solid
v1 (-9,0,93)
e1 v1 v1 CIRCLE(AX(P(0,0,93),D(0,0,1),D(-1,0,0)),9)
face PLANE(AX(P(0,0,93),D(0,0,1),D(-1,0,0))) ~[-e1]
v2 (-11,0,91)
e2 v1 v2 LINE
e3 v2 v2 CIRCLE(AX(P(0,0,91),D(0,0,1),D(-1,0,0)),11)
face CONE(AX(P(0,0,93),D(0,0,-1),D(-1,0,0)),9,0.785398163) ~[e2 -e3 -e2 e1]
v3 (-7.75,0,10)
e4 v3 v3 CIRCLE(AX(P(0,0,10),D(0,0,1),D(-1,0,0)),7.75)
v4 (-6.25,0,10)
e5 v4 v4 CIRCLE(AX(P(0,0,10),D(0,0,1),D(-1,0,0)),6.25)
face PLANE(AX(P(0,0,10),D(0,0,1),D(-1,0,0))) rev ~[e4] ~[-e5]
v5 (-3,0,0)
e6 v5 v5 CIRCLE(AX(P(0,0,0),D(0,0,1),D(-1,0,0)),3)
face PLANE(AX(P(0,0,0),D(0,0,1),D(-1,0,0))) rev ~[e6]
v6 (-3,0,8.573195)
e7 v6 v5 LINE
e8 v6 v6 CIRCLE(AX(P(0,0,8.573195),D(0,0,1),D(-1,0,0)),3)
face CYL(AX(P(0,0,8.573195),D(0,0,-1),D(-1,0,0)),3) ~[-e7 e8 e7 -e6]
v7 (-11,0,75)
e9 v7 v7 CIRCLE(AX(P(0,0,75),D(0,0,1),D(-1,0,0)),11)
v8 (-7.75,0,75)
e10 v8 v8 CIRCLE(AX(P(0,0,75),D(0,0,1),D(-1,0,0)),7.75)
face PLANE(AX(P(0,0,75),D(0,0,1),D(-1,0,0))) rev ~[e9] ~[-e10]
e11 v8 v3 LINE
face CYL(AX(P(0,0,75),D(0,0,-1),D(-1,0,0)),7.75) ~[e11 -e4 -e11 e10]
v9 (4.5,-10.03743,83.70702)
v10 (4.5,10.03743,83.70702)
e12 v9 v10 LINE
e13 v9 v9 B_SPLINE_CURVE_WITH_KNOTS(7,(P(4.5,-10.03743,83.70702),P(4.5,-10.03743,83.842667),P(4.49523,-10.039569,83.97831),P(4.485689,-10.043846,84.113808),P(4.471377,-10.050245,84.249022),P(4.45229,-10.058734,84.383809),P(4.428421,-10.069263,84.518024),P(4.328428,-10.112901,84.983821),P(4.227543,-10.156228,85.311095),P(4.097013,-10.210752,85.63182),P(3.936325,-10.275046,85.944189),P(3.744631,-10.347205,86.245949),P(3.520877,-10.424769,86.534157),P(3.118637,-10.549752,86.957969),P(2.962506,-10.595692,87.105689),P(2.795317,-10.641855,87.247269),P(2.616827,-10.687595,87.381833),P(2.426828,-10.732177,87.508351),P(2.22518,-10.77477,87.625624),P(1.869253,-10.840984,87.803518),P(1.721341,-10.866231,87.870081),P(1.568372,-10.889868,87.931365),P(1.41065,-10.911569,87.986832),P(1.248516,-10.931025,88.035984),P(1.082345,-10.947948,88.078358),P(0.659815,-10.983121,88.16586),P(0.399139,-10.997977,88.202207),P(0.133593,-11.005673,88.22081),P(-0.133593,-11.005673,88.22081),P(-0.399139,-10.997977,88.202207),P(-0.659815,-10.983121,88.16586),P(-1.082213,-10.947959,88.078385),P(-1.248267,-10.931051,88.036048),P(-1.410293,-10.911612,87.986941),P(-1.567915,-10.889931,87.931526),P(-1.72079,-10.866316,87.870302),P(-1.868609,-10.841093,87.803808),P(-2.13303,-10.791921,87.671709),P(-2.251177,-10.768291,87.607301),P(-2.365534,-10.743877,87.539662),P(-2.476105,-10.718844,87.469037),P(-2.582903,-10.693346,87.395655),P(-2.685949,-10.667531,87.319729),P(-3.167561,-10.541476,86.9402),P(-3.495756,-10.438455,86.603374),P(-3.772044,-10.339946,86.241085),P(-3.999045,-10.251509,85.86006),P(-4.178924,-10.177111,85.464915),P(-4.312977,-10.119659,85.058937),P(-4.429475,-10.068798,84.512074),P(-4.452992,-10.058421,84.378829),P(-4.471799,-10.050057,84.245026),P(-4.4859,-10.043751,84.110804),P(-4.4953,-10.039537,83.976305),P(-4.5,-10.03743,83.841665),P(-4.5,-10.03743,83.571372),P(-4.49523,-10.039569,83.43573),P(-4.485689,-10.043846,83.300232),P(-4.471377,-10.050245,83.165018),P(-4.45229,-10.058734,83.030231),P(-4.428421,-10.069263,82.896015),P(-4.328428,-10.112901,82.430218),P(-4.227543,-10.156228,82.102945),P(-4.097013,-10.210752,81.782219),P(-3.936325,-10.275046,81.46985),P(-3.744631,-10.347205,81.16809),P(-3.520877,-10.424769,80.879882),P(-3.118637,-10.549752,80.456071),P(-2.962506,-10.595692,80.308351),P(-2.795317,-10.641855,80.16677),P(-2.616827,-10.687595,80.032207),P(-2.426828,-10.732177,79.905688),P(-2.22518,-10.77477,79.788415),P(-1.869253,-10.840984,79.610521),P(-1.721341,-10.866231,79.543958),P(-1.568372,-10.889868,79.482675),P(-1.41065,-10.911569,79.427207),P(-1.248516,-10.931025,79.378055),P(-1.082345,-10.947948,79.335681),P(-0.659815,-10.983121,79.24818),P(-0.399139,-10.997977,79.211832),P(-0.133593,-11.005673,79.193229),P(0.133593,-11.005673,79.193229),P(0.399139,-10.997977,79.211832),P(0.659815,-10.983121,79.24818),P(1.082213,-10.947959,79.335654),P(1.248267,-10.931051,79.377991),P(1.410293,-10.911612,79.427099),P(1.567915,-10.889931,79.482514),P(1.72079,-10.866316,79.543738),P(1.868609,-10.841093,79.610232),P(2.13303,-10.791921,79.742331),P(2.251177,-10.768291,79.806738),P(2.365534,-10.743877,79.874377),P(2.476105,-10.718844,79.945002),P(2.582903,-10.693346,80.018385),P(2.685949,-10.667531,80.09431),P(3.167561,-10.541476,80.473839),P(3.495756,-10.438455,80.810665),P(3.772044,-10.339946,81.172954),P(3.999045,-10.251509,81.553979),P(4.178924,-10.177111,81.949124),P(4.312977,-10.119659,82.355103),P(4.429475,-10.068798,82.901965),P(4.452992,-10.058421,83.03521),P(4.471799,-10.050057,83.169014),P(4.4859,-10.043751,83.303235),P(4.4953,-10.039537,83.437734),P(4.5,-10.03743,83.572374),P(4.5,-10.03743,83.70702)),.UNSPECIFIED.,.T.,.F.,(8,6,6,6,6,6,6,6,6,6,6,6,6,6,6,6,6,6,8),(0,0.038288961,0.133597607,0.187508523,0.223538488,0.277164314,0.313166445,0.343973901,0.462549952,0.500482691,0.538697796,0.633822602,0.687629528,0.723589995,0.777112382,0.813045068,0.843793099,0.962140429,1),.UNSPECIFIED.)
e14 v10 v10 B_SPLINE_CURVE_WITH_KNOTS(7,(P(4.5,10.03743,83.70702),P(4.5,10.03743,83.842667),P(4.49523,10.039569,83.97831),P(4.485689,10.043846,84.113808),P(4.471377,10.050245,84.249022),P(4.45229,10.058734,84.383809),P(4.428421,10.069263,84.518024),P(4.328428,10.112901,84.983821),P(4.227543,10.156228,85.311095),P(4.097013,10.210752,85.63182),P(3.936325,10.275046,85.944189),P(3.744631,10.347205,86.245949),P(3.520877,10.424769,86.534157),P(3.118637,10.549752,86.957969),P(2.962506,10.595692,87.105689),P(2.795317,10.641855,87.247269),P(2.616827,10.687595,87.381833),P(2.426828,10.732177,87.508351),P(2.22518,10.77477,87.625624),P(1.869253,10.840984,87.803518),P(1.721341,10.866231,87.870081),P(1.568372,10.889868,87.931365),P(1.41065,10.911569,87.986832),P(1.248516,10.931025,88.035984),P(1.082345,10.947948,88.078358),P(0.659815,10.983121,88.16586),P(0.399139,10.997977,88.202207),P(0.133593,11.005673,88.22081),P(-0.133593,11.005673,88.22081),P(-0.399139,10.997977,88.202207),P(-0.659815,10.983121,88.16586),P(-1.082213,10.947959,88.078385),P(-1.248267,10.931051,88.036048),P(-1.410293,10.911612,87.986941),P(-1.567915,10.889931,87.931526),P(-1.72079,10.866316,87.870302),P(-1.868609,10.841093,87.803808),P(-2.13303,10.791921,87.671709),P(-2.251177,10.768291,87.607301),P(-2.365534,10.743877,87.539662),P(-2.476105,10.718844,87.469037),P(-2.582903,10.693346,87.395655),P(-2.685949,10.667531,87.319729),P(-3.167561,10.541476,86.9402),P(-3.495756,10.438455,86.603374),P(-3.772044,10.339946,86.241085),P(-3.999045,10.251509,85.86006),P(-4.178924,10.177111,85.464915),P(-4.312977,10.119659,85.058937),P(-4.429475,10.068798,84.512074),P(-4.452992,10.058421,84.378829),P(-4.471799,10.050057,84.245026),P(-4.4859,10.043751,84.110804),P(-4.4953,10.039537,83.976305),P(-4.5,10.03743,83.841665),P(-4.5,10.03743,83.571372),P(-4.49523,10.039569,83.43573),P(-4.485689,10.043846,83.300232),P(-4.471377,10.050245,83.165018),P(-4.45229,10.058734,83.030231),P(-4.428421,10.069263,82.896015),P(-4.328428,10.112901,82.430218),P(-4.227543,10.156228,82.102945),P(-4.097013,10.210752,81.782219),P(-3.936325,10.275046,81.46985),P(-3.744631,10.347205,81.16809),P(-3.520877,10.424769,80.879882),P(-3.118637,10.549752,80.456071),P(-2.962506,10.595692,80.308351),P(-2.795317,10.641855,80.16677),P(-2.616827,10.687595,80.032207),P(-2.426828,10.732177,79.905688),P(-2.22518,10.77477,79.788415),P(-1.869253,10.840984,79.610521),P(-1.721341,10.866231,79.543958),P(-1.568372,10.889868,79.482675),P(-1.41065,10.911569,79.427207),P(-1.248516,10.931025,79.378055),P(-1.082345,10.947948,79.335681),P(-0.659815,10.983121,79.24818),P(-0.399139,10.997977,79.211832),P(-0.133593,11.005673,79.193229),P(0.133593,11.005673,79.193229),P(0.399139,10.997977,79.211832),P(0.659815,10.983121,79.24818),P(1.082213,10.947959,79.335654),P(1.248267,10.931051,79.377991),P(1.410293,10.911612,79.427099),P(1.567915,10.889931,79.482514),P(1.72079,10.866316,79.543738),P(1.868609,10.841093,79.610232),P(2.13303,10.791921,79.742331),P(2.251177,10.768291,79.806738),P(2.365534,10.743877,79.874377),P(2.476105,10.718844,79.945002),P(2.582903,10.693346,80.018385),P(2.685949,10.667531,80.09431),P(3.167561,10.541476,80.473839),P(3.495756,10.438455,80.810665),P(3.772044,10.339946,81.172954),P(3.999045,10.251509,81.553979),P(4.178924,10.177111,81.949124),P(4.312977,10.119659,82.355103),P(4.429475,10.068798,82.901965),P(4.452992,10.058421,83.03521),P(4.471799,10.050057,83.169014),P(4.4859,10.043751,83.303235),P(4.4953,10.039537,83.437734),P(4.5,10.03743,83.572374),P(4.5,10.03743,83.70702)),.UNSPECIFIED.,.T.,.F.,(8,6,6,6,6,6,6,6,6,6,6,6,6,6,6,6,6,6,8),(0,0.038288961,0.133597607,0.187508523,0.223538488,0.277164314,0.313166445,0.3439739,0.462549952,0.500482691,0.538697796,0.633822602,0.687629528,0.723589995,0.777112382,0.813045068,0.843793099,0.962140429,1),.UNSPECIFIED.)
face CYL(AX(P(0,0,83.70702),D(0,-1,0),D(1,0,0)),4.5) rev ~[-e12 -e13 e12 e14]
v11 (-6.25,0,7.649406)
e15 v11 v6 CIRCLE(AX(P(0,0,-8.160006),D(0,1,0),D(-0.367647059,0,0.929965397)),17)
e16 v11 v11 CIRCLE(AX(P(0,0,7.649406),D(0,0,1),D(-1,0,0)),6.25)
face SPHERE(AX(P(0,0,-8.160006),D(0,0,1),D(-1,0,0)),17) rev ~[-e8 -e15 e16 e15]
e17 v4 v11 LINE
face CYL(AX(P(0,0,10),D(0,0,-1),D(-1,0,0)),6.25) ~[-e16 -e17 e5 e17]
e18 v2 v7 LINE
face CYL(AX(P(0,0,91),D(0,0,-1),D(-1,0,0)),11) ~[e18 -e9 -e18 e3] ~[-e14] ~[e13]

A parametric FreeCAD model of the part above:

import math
import FreeCAD as App
import Part
import Sketcher
from FreeCAD import Vector
Q = App.Units.Quantity

doc = App.newDocument("Part")
body = doc.addObject("PartDesign::Body", "Body")

sketch1 = doc.addObject("Sketcher::SketchObject", "Sketch")
body.addObject(sketch1)
sketch1.AttachmentSupport = (doc.XZ_Plane, [""])
sketch1.MapMode = "FlatFace"
sketch1.addGeometry([
    Part.LineSegment(Vector(0, 93, 0), Vector(-9, 93, 0)),
    Part.LineSegment(Vector(-9, 93, 0), Vector(-11, 91, 0)),
    Part.LineSegment(Vector(-11, 91, 0), Vector(-11, 75, 0)),
    Part.LineSegment(Vector(-11, 75, 0), Vector(-7.8, 75, 0)),
    Part.LineSegment(Vector(-7.8, 75, 0), Vector(-7.8, 10, 0)),
    Part.LineSegment(Vector(-7.8, 10, 0), Vector(-6.2, 10, 0)),
    Part.LineSegment(Vector(-6.2, 10, 0), Vector(-6.2, 7.6, 0)),
    Part.ArcOfCircle(Part.Circle(Vector(0, -8.2, 0), Vector(0, 0, 1), 17), math.radians(100.16), math.radians(111.57)),
    Part.LineSegment(Vector(-3, 8.6, 0), Vector(-3, 0, 0)),
    Part.LineSegment(Vector(-3, 0, 0), Vector(0, 0, 0)),
    Part.LineSegment(Vector(0, 0, 0), Vector(0, 93, 0)),
], False)
sketch1.addConstraint([
    Sketcher.Constraint("Coincident", 0, 2, 1, 1),
    Sketcher.Constraint("Coincident", 1, 2, 2, 1),
    Sketcher.Constraint("Coincident", 2, 2, 3, 1),
    Sketcher.Constraint("Coincident", 3, 2, 4, 1),
    Sketcher.Constraint("Coincident", 4, 2, 5, 1),
    Sketcher.Constraint("Coincident", 5, 2, 6, 1),
    Sketcher.Constraint("Coincident", 6, 2, 7, 2),
    Sketcher.Constraint("Coincident", 7, 1, 8, 1),
    Sketcher.Constraint("Coincident", 8, 2, 9, 1),
    Sketcher.Constraint("Coincident", 9, 2, 10, 1),
    Sketcher.Constraint("Coincident", 10, 2, 0, 1),
    Sketcher.Constraint("Horizontal", 0),
    Sketcher.Constraint("Vertical", 2),
    Sketcher.Constraint("Horizontal", 3),
    Sketcher.Constraint("Vertical", 4),
    Sketcher.Constraint("Horizontal", 5),
    Sketcher.Constraint("Vertical", 6),
    Sketcher.Constraint("Vertical", 8),
    Sketcher.Constraint("Horizontal", 9),
    Sketcher.Constraint("Vertical", 10),
    Sketcher.Constraint("Coincident", 9, 2, -1, 1),
    Sketcher.Constraint("PointOnObject", 7, 3, -2),
    Sketcher.Constraint("Radius", 7, Q("17 mm")),
    Sketcher.Constraint("DistanceX", 0, 2, 0, 1, Q("9 mm")),
    Sketcher.Constraint("DistanceX", 9, 1, 9, 2, Q("3 mm")),
    Sketcher.Constraint("DistanceY", 2, 2, 2, 1, Q("16 mm")),
    Sketcher.Constraint("DistanceY", 4, 2, 4, 1, Q("65 mm")),
    Sketcher.Constraint("DistanceY", 10, 1, 10, 2, Q("93 mm")),
    Sketcher.Constraint("Angle", 1, Q("-135 deg")),
    Sketcher.Constraint("DistanceX", 5, 1, 5, 2, Q("1.5 mm")),
    Sketcher.Constraint("DistanceX", 1, 2, -1, 1, Q("11 mm")),
    Sketcher.Constraint("DistanceX", 3, 1, 3, 2, Q("3.25 mm")),
    Sketcher.Constraint("DistanceY", 6, 2, 6, 1, Q("2.350594 mm")),
])
revolution = doc.addObject("PartDesign::Revolution", "Revolution")
body.addObject(revolution)
revolution.Profile = sketch1
revolution.ReferenceAxis = (sketch1, ["V_Axis"])
revolution.Angle = 360

sketch2 = doc.addObject("Sketcher::SketchObject", "Sketch001")
body.addObject(sketch2)
sketch2.AttachmentSupport = (doc.XZ_Plane, [""])
sketch2.MapMode = "FlatFace"
sketch2.addGeometry(Part.Circle(Vector(0, 83.7, 0), Vector(0, 0, 1), 4.5), False)
sketch2.addConstraint([
    Sketcher.Constraint("PointOnObject", 0, 3, -2),
    Sketcher.Constraint("Diameter", 0, Q("9 mm")),
    Sketcher.Constraint("DistanceY", -1, 1, 0, 3, Q("83.70702 mm")),
])
pocket1 = doc.addObject("PartDesign::Pocket", "Pocket")
body.addObject(pocket1)
pocket1.Profile = sketch2
pocket1.Type = "ThroughAll"
pocket1.Midplane = True

doc.recompute()
